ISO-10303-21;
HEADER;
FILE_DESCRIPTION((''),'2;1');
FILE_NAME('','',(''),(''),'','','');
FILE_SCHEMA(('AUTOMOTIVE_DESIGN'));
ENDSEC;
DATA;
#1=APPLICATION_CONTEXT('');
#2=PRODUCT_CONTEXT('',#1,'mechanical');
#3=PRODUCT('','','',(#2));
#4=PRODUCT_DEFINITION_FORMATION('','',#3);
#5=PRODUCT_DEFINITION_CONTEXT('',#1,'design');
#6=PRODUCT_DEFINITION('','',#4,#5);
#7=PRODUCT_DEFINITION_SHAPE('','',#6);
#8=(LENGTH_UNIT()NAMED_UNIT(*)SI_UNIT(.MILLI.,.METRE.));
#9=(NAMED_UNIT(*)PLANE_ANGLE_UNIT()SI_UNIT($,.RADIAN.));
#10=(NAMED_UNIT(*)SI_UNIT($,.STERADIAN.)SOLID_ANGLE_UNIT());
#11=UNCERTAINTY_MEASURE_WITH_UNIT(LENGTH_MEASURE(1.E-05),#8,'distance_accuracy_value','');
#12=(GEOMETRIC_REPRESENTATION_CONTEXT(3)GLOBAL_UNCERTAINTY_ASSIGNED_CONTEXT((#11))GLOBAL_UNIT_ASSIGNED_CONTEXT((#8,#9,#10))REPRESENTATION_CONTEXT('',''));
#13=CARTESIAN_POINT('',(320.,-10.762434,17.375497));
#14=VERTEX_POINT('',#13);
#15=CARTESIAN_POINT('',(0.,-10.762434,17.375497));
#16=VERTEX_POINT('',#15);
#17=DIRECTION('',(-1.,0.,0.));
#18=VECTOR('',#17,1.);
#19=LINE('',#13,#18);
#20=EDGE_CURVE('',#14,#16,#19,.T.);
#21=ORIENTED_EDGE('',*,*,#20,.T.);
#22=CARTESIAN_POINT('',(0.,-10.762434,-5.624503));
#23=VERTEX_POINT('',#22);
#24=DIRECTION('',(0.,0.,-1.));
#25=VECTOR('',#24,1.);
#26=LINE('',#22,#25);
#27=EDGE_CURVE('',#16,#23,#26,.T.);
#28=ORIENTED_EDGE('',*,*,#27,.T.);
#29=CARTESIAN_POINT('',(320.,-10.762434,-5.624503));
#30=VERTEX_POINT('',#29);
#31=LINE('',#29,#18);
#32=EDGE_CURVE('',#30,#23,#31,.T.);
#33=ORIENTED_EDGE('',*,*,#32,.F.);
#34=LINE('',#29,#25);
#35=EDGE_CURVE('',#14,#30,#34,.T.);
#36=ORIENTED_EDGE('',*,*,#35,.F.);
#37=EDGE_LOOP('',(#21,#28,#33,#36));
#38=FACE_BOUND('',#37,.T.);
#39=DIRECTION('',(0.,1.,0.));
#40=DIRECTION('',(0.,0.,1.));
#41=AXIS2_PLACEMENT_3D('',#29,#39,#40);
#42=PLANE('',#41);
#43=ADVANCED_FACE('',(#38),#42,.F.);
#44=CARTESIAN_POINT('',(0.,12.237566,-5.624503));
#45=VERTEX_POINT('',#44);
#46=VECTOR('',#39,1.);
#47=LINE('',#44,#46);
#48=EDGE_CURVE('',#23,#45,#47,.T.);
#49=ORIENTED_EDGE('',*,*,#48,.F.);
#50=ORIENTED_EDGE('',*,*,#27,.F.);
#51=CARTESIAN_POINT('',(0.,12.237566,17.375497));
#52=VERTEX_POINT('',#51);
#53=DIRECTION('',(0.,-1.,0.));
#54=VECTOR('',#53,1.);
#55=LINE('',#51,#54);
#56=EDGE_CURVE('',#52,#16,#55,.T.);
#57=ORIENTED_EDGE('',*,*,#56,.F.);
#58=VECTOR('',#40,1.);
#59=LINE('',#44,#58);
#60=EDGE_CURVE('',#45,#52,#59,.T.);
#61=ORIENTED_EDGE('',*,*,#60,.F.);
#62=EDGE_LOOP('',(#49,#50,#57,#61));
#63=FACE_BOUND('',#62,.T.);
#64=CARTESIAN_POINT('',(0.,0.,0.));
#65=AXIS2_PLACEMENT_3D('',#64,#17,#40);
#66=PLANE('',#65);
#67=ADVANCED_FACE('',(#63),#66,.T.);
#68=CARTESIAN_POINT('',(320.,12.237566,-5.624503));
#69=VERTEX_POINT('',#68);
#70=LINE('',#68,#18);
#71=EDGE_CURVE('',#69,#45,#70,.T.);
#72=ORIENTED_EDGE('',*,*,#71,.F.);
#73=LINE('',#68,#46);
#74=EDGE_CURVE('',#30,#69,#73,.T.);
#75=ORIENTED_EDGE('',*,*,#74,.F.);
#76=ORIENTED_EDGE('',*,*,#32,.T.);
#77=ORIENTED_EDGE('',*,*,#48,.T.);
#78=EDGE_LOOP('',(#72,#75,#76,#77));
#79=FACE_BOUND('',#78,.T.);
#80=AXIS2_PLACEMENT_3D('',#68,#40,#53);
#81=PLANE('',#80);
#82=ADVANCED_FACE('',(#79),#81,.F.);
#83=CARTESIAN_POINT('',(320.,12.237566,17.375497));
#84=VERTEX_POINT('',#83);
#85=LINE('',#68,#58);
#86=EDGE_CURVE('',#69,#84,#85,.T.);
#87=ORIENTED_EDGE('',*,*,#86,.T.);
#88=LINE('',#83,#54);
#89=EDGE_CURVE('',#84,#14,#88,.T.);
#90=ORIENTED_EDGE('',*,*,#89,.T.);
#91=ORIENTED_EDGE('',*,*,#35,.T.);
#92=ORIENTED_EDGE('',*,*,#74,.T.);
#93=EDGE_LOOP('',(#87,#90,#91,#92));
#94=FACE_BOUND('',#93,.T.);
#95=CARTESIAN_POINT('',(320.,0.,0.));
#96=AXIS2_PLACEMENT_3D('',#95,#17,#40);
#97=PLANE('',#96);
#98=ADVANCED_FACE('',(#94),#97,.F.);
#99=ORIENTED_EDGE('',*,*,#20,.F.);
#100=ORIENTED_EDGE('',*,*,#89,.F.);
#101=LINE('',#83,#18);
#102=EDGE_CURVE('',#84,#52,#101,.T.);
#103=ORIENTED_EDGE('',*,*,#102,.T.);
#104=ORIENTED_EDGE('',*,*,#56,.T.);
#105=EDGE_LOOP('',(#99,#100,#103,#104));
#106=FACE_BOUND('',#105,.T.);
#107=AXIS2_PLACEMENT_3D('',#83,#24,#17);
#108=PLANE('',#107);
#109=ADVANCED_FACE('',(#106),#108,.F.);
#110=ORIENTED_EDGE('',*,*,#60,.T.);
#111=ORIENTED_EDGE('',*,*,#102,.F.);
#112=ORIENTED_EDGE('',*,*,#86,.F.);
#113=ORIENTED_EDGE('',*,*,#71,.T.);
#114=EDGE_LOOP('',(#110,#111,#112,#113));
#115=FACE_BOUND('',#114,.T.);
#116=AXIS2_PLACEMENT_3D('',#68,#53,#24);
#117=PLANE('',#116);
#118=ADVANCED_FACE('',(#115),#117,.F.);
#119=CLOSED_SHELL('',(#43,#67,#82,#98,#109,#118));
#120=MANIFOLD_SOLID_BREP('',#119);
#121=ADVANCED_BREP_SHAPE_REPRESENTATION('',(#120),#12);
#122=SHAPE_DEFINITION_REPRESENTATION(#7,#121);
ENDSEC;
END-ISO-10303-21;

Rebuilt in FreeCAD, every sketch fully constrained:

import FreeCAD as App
import Part
import Sketcher


def add_polygon(sketch, points):
    """Adds a closed chain of lines whose ends are joined by coincident constraints."""
    first, n = sketch.GeometryCount, len(points)
    for a, b in zip(points, points[1:] + points[:1]):
        sketch.addGeometry(Part.LineSegment(App.Vector(*a, 0), App.Vector(*b, 0)), False)
    for i in range(n):
        sketch.addConstraint(Sketcher.Constraint("Coincident", first + i, 2, first + (i + 1) % n, 1))

doc = App.newDocument("Part")
params = doc.addObject("Spreadsheet::Sheet", "Params")
for row, (alias, value) in enumerate([
    ("sketch1_width", "23 mm"),
    ("pad1_length", "320 mm"),
], start=1):
    params.set(f"A{row}", alias)
    params.set(f"B{row}", "=" + value)
    params.setAlias(f"B{row}", alias)

body = doc.addObject("PartDesign::Body", "Body")

# Sketch on YZ plane
sketch1 = body.newObject("Sketcher::SketchObject", "Sketch")
sketch1.AttachmentSupport = (doc.getObject("YZ_Plane"), [""])
sketch1.MapMode = "FlatFace"
add_polygon(sketch1, [(12.237566, 17.375497), (-10.762434, 17.375497), (-10.762434, -5.624503), (12.237566, -5.624503)])  # lines 0-3
sketch1.addConstraint([
    Sketcher.Constraint("Horizontal", 0),
    Sketcher.Constraint("Vertical", 1),
    Sketcher.Constraint("Horizontal", 2),
    Sketcher.Constraint("Vertical", 3),
    Sketcher.Constraint("Equal", 2, 1),
    Sketcher.Constraint("DistanceX", 0, 2, 0, 1, 23.0),
    Sketcher.Constraint("DistanceX", 0, 2, -1, 1, 10.762434),
    Sketcher.Constraint("DistanceY", -1, 1, 0, 2, 17.375497),
])
sketch1.setExpression("Constraints[9]", "Params.sketch1_width")
pad1 = body.newObject("PartDesign::Pad", "Pad")
pad1.Profile = sketch1
pad1.setExpression("Length", "Params.pad1_length")

doc.recompute()
